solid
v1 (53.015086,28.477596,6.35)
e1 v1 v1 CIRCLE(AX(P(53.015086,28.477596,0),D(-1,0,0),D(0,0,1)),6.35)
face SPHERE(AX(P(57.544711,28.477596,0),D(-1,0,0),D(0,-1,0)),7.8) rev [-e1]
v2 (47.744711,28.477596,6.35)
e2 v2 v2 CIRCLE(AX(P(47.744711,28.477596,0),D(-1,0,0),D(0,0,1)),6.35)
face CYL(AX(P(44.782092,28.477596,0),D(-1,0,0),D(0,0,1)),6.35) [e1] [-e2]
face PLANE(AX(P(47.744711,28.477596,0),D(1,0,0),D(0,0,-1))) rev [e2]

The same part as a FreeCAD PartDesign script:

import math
import FreeCAD as App
import Part
import Sketcher

V = App.Vector

doc = App.newDocument("Part")
body = doc.addObject("PartDesign::Body", "Body")

# Sketch on XY plane
sketch1 = doc.addObject("Sketcher::SketchObject", "Sketch")
body.addObject(sketch1)
sketch1.AttachmentSupport = (doc.XY_Plane, [""])
sketch1.MapMode = "FlatFace"
sketch1.addGeometry([
    Part.LineSegment(V(47.7, 34.8, 0), V(47.7, 28.5, 0)),
    Part.LineSegment(V(47.7, 28.5, 0), V(49.7, 28.5, 0)),
    Part.ArcOfCircle(Part.Circle(V(57.5, 28.5, 0), V(0, 0, 1), 7.8), math.radians(126), math.radians(180)),
    Part.LineSegment(V(53, 34.8, 0), V(47.7, 34.8, 0)),
], False)
sketch1.addGeometry(Part.LineSegment(V(47.7, 28.5, 0), V(57.5, 28.5, 0)), True)  # axis
sketch1.addConstraint([
    Sketcher.Constraint("Coincident", 0, 2, 1, 1),
    Sketcher.Constraint("Coincident", 1, 2, 2, 2),
    Sketcher.Constraint("Coincident", 2, 1, 3, 1),
    Sketcher.Constraint("Coincident", 3, 2, 0, 1),
    Sketcher.Constraint("Vertical", 0),
    Sketcher.Constraint("Horizontal", 1),
    Sketcher.Constraint("Horizontal", 3),
    Sketcher.Constraint("Horizontal", 4),
    Sketcher.Constraint("Coincident", 4, 1, 0, 2),
    Sketcher.Constraint("Coincident", 4, 2, 2, 3),
    Sketcher.Constraint("Radius", 2, 7.8),
    Sketcher.Constraint("DistanceX", 1, 1, 1, 2, 2.0),
    Sketcher.Constraint("DistanceY", 0, 2, 0, 1, 6.35),
    Sketcher.Constraint("DistanceX", -1, 1, 2, 3, 57.544711),
    Sketcher.Constraint("DistanceY", -1, 1, 2, 3, 28.477596),
])
revolution = doc.addObject("PartDesign::Revolution", "Revolution")
body.addObject(revolution)
revolution.Profile = sketch1
revolution.ReferenceAxis = (sketch1, ["Axis0"])
revolution.Angle = 360

doc.recompute()
